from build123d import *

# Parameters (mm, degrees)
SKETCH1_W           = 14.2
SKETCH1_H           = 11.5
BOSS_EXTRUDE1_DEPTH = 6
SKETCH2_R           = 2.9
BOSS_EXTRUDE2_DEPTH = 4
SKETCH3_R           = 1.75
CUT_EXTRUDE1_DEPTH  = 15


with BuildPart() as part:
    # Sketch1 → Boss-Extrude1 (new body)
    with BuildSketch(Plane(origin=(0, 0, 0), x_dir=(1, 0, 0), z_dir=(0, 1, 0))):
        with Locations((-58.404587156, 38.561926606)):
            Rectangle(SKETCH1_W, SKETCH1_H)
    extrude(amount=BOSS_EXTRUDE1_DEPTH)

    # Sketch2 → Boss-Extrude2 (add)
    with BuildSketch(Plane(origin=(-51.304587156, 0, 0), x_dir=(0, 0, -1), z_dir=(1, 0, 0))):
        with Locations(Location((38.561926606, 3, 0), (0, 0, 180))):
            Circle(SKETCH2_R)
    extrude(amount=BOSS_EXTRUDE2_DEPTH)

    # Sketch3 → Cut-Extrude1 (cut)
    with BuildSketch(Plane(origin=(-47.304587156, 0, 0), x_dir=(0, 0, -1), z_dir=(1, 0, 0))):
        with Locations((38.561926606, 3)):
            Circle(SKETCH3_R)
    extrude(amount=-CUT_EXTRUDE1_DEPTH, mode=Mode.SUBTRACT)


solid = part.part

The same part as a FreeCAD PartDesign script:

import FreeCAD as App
import Part
import Sketcher
Q = App.Units.Quantity


def add_polygon(sketch, points):
    """Adds a closed chain of lines whose ends are joined by coincident constraints."""
    first, n = sketch.GeometryCount, len(points)
    for a, b in zip(points, points[1:] + points[:1]):
        sketch.addGeometry(Part.LineSegment(App.Vector(*a, 0), App.Vector(*b, 0)), False)
    for i in range(n):
        sketch.addConstraint(Sketcher.Constraint("Coincident", first + i, 2, first + (i + 1) % n, 1))

doc = App.newDocument("Part")
body = doc.addObject("PartDesign::Body", "Body")

sketch1 = body.newObject("Sketcher::SketchObject", "Sketch")
sketch1.AttachmentSupport = (doc.getObject("XZ_Plane"), [""])
sketch1.MapMode = "FlatFace"
add_polygon(sketch1, [(-65.504587, -44.311927), (-65.504587, -32.811927), (-51.304587, -32.811927), (-51.304587, -44.311927)])
sketch1.addConstraint([
    Sketcher.Constraint("Vertical", 0),
    Sketcher.Constraint("Horizontal", 1),
    Sketcher.Constraint("Vertical", 2),
    Sketcher.Constraint("Horizontal", 3),
    Sketcher.Constraint("DistanceX", 1, 1, 1, 2, Q("14.2 mm")),
    Sketcher.Constraint("DistanceY", 0, 1, 0, 2, Q("11.5 mm")),
    Sketcher.Constraint("DistanceX", 0, 2, -1, 1, Q("65.504587 mm")),
    Sketcher.Constraint("DistanceY", 0, 2, -1, 1, Q("32.811927 mm")),
])
pad1 = body.newObject("PartDesign::Pad", "Pad")
pad1.Profile = sketch1
pad1.Length = 6
pad1.Reversed = True

sketch2 = body.newObject("Sketcher::SketchObject", "Sketch001")
sketch2.AttachmentSupport = (doc.getObject("YZ_Plane"), [""])
sketch2.MapMode = "FlatFace"
sketch2.AttachmentOffset = App.Placement(App.Vector(0, 0, -51.304587), App.Rotation())
sketch2.addGeometry(Part.Circle(App.Vector(3, -38.561927, 0), App.Vector(0, 0, 1), 2.9), False)
sketch2.addConstraint([
    Sketcher.Constraint("Diameter", 0, Q("5.8 mm")),
    Sketcher.Constraint("DistanceX", -1, 1, 0, 3, Q("3 mm")),
    Sketcher.Constraint("DistanceY", 0, 3, -1, 1, Q("38.561927 mm")),
])
pad2 = body.newObject("PartDesign::Pad", "Pad001")
pad2.Profile = sketch2
pad2.Length = 4

sketch3 = body.newObject("Sketcher::SketchObject", "Sketch002")
sketch3.AttachmentSupport = (doc.getObject("YZ_Plane"), [""])
sketch3.MapMode = "FlatFace"
sketch3.AttachmentOffset = App.Placement(App.Vector(0, 0, -47.304587), App.Rotation())
sketch3.addGeometry(Part.Circle(App.Vector(3, -38.561927, 0), App.Vector(0, 0, 1), 1.75), False)
sketch3.addConstraint([
    Sketcher.Constraint("Diameter", 0, Q("3.5 mm")),
    Sketcher.Constraint("DistanceX", -1, 1, 0, 3, Q("3 mm")),
    Sketcher.Constraint("DistanceY", 0, 3, -1, 1, Q("38.561927 mm")),
])
pocket1 = body.newObject("PartDesign::Pocket", "Pocket")
pocket1.Profile = sketch3
pocket1.Length = 15

doc.recompute()
